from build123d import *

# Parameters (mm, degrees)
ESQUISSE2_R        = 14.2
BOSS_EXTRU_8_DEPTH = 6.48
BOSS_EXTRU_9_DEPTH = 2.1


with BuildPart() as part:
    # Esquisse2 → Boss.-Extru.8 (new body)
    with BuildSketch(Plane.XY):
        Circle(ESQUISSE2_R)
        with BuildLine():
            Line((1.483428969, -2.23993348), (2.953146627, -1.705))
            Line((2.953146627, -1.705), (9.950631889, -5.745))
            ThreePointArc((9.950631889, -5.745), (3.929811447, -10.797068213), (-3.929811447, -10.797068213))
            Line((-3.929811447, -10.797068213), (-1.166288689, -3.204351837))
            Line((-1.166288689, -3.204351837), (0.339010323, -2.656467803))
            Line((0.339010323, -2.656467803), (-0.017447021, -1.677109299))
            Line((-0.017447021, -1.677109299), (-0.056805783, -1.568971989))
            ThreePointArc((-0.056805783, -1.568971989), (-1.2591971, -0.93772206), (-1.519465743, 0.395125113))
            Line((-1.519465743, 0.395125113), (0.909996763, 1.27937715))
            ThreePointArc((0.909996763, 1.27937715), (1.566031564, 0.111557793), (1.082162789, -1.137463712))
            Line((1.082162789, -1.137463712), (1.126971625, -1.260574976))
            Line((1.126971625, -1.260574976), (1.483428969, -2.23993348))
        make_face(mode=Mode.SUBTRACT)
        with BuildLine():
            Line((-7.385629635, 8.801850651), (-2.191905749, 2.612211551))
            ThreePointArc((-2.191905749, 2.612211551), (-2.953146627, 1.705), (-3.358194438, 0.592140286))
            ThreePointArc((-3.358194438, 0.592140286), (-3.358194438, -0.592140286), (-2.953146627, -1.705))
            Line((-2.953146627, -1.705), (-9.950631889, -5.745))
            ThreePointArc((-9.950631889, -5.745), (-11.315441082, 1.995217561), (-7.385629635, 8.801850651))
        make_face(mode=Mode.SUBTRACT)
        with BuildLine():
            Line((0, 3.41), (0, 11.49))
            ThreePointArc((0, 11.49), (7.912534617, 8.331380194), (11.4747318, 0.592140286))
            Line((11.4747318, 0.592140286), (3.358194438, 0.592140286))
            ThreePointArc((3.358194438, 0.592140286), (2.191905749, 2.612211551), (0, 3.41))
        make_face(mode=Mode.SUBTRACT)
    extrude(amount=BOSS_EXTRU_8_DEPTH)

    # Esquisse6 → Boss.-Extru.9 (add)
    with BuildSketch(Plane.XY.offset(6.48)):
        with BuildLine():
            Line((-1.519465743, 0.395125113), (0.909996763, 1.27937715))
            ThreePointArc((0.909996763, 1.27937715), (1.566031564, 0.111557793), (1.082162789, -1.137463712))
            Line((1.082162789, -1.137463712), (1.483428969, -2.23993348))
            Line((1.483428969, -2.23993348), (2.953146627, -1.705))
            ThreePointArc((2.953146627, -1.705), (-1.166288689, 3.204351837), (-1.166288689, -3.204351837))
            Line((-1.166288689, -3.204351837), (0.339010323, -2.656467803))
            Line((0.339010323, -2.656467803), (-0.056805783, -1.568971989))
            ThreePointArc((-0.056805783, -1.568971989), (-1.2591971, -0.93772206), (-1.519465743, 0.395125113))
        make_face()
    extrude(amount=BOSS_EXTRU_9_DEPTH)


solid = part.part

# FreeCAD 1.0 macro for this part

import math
import FreeCAD as App
import Part
import Sketcher
from FreeCAD import Vector
Q = App.Units.Quantity

doc = App.newDocument("Part")
body = doc.addObject("PartDesign::Body", "Body")

# Sketch on XY plane
sketch1 = doc.addObject("Sketcher::SketchObject", "Sketch")
body.addObject(sketch1)
sketch1.AttachmentSupport = (doc.XY_Plane, [""])
sketch1.MapMode = "FlatFace"
sketch1.addGeometry(Part.Circle(Vector(0, 0, 0), Vector(0, 0, 1), 14.2), False)
sketch1.addGeometry(Part.LineSegment(Vector(1.126972, -1.260575, 0), Vector(1.483429, -2.239933, 0)), False)
sketch1.addGeometry(Part.LineSegment(Vector(1.483429, -2.239933, 0), Vector(2.953147, -1.705, 0)), False)
sketch1.addGeometry(Part.LineSegment(Vector(2.953147, -1.705, 0), Vector(9.950632, -5.745, 0)), False)
sketch1.addGeometry(Part.ArcOfCircle(Part.Circle(Vector(0, 0, 0), Vector(0, 0, 1), 11.49), math.radians(-110), math.radians(-30)), False)
sketch1.addGeometry(Part.LineSegment(Vector(-3.929811, -10.797068, 0), Vector(-1.166289, -3.204352, 0)), False)
sketch1.addGeometry(Part.LineSegment(Vector(-1.166289, -3.204352, 0), Vector(0.33901, -2.656468, 0)), False)
sketch1.addGeometry(Part.LineSegment(Vector(0.33901, -2.656468, 0), Vector(-0.017447, -1.677109, 0)), False)
sketch1.addGeometry(Part.LineSegment(Vector(-0.017447, -1.677109, 0), Vector(-0.056806, -1.568972, 0)), False)
sketch1.addGeometry(Part.ArcOfCircle(Part.Circle(Vector(0, 0, 0), Vector(0, 0, 1), 1.57), math.radians(165.423523), math.radians(267.92647)), False)
sketch1.addGeometry(Part.LineSegment(Vector(-1.519466, 0.395125, 0), Vector(0.909997, 1.279377, 0)), False)
sketch1.addGeometry(Part.ArcOfCircle(Part.Circle(Vector(0, 0, 0), Vector(0, 0, 1), 1.57), math.radians(-46.427201), math.radians(54.576477)), False)
sketch1.addGeometry(Part.LineSegment(Vector(1.082163, -1.137464, 0), Vector(1.126972, -1.260575, 0)), False)
sketch1.addGeometry(Part.ArcOfCircle(Part.Circle(Vector(0, 0, 0), Vector(0, 0, 1), 11.49), math.radians(130), math.radians(210)), False)
sketch1.addGeometry(Part.LineSegment(Vector(-7.38563, 8.801851, 0), Vector(-2.191906, 2.612212, 0)), False)
sketch1.addGeometry(Part.ArcOfCircle(Part.Circle(Vector(0, 0, 0), Vector(0, 0, 1), 3.41), math.radians(130), math.radians(170)), False)
sketch1.addGeometry(Part.ArcOfCircle(Part.Circle(Vector(0, 0, 0), Vector(0, 0, 1), 3.41), math.radians(170), math.radians(210)), False)
sketch1.addGeometry(Part.LineSegment(Vector(-2.953147, -1.705, 0), Vector(-9.950632, -5.745, 0)), False)
sketch1.addGeometry(Part.ArcOfCircle(Part.Circle(Vector(0, 0, 0), Vector(0, 0, 1), 3.41), math.radians(10), math.radians(90)), False)
sketch1.addGeometry(Part.LineSegment(Vector(0, 3.41, 0), Vector(0, 11.49, 0)), False)
sketch1.addGeometry(Part.ArcOfCircle(Part.Circle(Vector(0, 0, 0), Vector(0, 0, 1), 11.49), math.radians(2.954062), math.radians(90)), False)
sketch1.addGeometry(Part.LineSegment(Vector(11.474732, 0.59214, 0), Vector(3.358194, 0.59214, 0)), False)
sketch1.addConstraint(Sketcher.Constraint("Coincident", 1, 2, 2, 1))
sketch1.addConstraint(Sketcher.Constraint("Coincident", 2, 2, 3, 1))
sketch1.addConstraint(Sketcher.Constraint("Coincident", 3, 2, 4, 2))
sketch1.addConstraint(Sketcher.Constraint("Coincident", 4, 1, 5, 1))
sketch1.addConstraint(Sketcher.Constraint("Coincident", 5, 2, 6, 1))
sketch1.addConstraint(Sketcher.Constraint("Coincident", 6, 2, 7, 1))
sketch1.addConstraint(Sketcher.Constraint("Coincident", 7, 2, 8, 1))
sketch1.addConstraint(Sketcher.Constraint("Coincident", 8, 2, 9, 2))
sketch1.addConstraint(Sketcher.Constraint("Coincident", 9, 1, 10, 1))
sketch1.addConstraint(Sketcher.Constraint("Coincident", 10, 2, 11, 2))
sketch1.addConstraint(Sketcher.Constraint("Coincident", 11, 1, 12, 1))
sketch1.addConstraint(Sketcher.Constraint("Coincident", 12, 2, 1, 1))
sketch1.addConstraint(Sketcher.Constraint("Coincident", 13, 1, 14, 1))
sketch1.addConstraint(Sketcher.Constraint("Coincident", 14, 2, 15, 1))
sketch1.addConstraint(Sketcher.Constraint("Tangent", 15, 2, 16, 1))
sketch1.addConstraint(Sketcher.Constraint("Coincident", 16, 2, 17, 1))
sketch1.addConstraint(Sketcher.Constraint("Coincident", 17, 2, 13, 2))
sketch1.addConstraint(Sketcher.Constraint("Coincident", 18, 2, 19, 1))
sketch1.addConstraint(Sketcher.Constraint("Coincident", 19, 2, 20, 2))
sketch1.addConstraint(Sketcher.Constraint("Coincident", 20, 1, 21, 1))
sketch1.addConstraint(Sketcher.Constraint("Coincident", 21, 2, 18, 1))
sketch1.addConstraint(Sketcher.Constraint("Vertical", 19))
sketch1.addConstraint(Sketcher.Constraint("Horizontal", 21))
sketch1.addConstraint(Sketcher.Constraint("Coincident", 0, 3, -1, 1))
sketch1.addConstraint(Sketcher.Constraint("Coincident", 4, 3, -1, 1))
sketch1.addConstraint(Sketcher.Constraint("Coincident", 9, 3, -1, 1))
sketch1.addConstraint(Sketcher.Constraint("Coincident", 11, 3, -1, 1))
sketch1.addConstraint(Sketcher.Constraint("Coincident", 13, 3, -1, 1))
sketch1.addConstraint(Sketcher.Constraint("Coincident", 15, 3, -1, 1))
sketch1.addConstraint(Sketcher.Constraint("Coincident", 18, 3, -1, 1))
sketch1.addConstraint(Sketcher.Constraint("Coincident", 20, 3, -1, 1))
sketch1.addConstraint(Sketcher.Constraint("Equal", 9, 11))
sketch1.addConstraint(Sketcher.Constraint("Equal", 4, 13))
sketch1.addConstraint(Sketcher.Constraint("Equal", 15, 16))
sketch1.addConstraint(Sketcher.Constraint("Equal", 16, 18))
sketch1.addConstraint(Sketcher.Constraint("Equal", 13, 20))
sketch1.addConstraint(Sketcher.Constraint("Symmetric", 2, 2, 16, 2, -2))
sketch1.addConstraint(Sketcher.Constraint("PointOnObject", 18, 2, -2))
sketch1.addConstraint(Sketcher.Constraint("Perpendicular", 1, 2))
sketch1.addConstraint(Sketcher.Constraint("Parallel", 2, 6))
sketch1.addConstraint(Sketcher.Constraint("Perpendicular", 6, 7))
sketch1.addConstraint(Sketcher.Constraint("Parallel", 7, 8))
sketch1.addConstraint(Sketcher.Constraint("Perpendicular", 8, 10))
sketch1.addConstraint(Sketcher.Constraint("Perpendicular", 10, 12))
sketch1.addConstraint(Sketcher.Constraint("Horizontal", 3, 2, 17, 2))
sketch1.addConstraint(Sketcher.Constraint("Horizontal", 15, 2, 20, 1))
sketch1.addConstraint(Sketcher.Constraint("Equal", 3, 5))
sketch1.addConstraint(Sketcher.Constraint("Equal", 1, 7))
sketch1.addConstraint(Sketcher.Constraint("Diameter", 0, 28.4))
sketch1.addConstraint(Sketcher.Constraint("Angle", 1, Q("-70 deg")))
sketch1.addConstraint(Sketcher.Constraint("Angle", 3, Q("-30 deg")))
sketch1.addConstraint(Sketcher.Constraint("Angle", 5, Q("70 deg")))
sketch1.addConstraint(Sketcher.Constraint("Angle", 14, Q("-50 deg")))
sketch1.addConstraint(Sketcher.Constraint("Radius", 4, 11.49))
sketch1.addConstraint(Sketcher.Constraint("Radius", 9, 1.57))
sketch1.addConstraint(Sketcher.Constraint("Radius", 15, 3.41))
sketch1.addConstraint(Sketcher.Constraint("DistanceY", 2, 2, -1, 1, 1.705))
sketch1.addConstraint(Sketcher.Constraint("DistanceX", 5, 2, 6, 2, 1.505299))
sketch1.addConstraint(Sketcher.Constraint("DistanceX", 16, 2, 7, 2, 2.9357))
sketch1.addConstraint(Sketcher.Constraint("DistanceX", 3, 2, 20, 1, 1.5241))
sketch1.addConstraint(Sketcher.Constraint("Distance", 1, 1.042212))
sketch1.addConstraint(Sketcher.Constraint("Distance", 2, 1.564041))
sketch1.addConstraint(Sketcher.Constraint("Distance", 10, 2.58538))
sketch1.addConstraint(Sketcher.Constraint("DistanceX", 13, 1, -1, 1, 7.38563))
pad1 = doc.addObject("PartDesign::Pad", "Pad")
body.addObject(pad1)
pad1.Profile = sketch1
pad1.Length = 6.48

# Sketch on XY plane
sketch2 = doc.addObject("Sketcher::SketchObject", "Sketch001")
body.addObject(sketch2)
sketch2.AttachmentSupport = (doc.XY_Plane, [""])
sketch2.MapMode = "FlatFace"
sketch2.AttachmentOffset = App.Placement(Vector(0, 0, 6.48), App.Rotation())
sketch2.addGeometry(Part.LineSegment(Vector(-1.519466, 0.395125, 0), Vector(0.909997, 1.279377, 0)), False)
sketch2.addGeometry(Part.ArcOfCircle(Part.Circle(Vector(0, 0, 0), Vector(0, 0, 1), 1.57), math.radians(-46.427201), math.radians(54.576477)), False)
sketch2.addGeometry(Part.LineSegment(Vector(1.082163, -1.137464, 0), Vector(1.483429, -2.239933, 0)), False)
sketch2.addGeometry(Part.LineSegment(Vector(1.483429, -2.239933, 0), Vector(2.953147, -1.705, 0)), False)
sketch2.addGeometry(Part.ArcOfCircle(Part.Circle(Vector(0, 0, 0), Vector(0, 0, 1), 3.41), math.radians(-30), math.radians(250)), False)
sketch2.addGeometry(Part.LineSegment(Vector(-1.166289, -3.204352, 0), Vector(0.33901, -2.656468, 0)), False)
sketch2.addGeometry(Part.LineSegment(Vector(0.33901, -2.656468, 0), Vector(-0.056806, -1.568972, 0)), False)
sketch2.addGeometry(Part.ArcOfCircle(Part.Circle(Vector(0, 0, 0), Vector(0, 0, 1), 1.57), math.radians(165.423523), math.radians(267.92647)), False)
sketch2.addConstraint(Sketcher.Constraint("Coincident", 0, 2, 1, 2))
sketch2.addConstraint(Sketcher.Constraint("Coincident", 1, 1, 2, 1))
sketch2.addConstraint(Sketcher.Constraint("Coincident", 2, 2, 3, 1))
sketch2.addConstraint(Sketcher.Constraint("Coincident", 3, 2, 4, 1))
sketch2.addConstraint(Sketcher.Constraint("Coincident", 4, 2, 5, 1))
sketch2.addConstraint(Sketcher.Constraint("Coincident", 5, 2, 6, 1))
sketch2.addConstraint(Sketcher.Constraint("Coincident", 6, 2, 7, 2))
sketch2.addConstraint(Sketcher.Constraint("Coincident", 7, 1, 0, 1))
sketch2.addConstraint(Sketcher.Constraint("Coincident", 1, 3, -1, 1))
sketch2.addConstraint(Sketcher.Constraint("Coincident", 4, 3, -1, 1))
sketch2.addConstraint(Sketcher.Constraint("Coincident", 7, 3, -1, 1))
sketch2.addConstraint(Sketcher.Constraint("Equal", 1, 7))
sketch2.addConstraint(Sketcher.Constraint("Perpendicular", 0, 2))
sketch2.addConstraint(Sketcher.Constraint("Perpendicular", 2, 3))
sketch2.addConstraint(Sketcher.Constraint("Parallel", 3, 5))
sketch2.addConstraint(Sketcher.Constraint("Perpendicular", 5, 6))
sketch2.addConstraint(Sketcher.Constraint("Angle", 0, Q("20 deg")))
sketch2.addConstraint(Sketcher.Constraint("Radius", 1, 1.57))
sketch2.addConstraint(Sketcher.Constraint("Radius", 4, 3.41))
sketch2.addConstraint(Sketcher.Constraint("DistanceY", 3, 2, -1, 1, 1.705))
sketch2.addConstraint(Sketcher.Constraint("DistanceX", 4, 2, 5, 2, 1.505299))
sketch2.addConstraint(Sketcher.Constraint("Distance", 0, 2.58538))
sketch2.addConstraint(Sketcher.Constraint("Distance", 3, 1.564041))
sketch2.addConstraint(Sketcher.Constraint("Distance", 6, 1.157289))
pad2 = doc.addObject("PartDesign::Pad", "Pad001")
body.addObject(pad2)
pad2.Profile = sketch2
pad2.Length = 2.1

doc.recompute()
